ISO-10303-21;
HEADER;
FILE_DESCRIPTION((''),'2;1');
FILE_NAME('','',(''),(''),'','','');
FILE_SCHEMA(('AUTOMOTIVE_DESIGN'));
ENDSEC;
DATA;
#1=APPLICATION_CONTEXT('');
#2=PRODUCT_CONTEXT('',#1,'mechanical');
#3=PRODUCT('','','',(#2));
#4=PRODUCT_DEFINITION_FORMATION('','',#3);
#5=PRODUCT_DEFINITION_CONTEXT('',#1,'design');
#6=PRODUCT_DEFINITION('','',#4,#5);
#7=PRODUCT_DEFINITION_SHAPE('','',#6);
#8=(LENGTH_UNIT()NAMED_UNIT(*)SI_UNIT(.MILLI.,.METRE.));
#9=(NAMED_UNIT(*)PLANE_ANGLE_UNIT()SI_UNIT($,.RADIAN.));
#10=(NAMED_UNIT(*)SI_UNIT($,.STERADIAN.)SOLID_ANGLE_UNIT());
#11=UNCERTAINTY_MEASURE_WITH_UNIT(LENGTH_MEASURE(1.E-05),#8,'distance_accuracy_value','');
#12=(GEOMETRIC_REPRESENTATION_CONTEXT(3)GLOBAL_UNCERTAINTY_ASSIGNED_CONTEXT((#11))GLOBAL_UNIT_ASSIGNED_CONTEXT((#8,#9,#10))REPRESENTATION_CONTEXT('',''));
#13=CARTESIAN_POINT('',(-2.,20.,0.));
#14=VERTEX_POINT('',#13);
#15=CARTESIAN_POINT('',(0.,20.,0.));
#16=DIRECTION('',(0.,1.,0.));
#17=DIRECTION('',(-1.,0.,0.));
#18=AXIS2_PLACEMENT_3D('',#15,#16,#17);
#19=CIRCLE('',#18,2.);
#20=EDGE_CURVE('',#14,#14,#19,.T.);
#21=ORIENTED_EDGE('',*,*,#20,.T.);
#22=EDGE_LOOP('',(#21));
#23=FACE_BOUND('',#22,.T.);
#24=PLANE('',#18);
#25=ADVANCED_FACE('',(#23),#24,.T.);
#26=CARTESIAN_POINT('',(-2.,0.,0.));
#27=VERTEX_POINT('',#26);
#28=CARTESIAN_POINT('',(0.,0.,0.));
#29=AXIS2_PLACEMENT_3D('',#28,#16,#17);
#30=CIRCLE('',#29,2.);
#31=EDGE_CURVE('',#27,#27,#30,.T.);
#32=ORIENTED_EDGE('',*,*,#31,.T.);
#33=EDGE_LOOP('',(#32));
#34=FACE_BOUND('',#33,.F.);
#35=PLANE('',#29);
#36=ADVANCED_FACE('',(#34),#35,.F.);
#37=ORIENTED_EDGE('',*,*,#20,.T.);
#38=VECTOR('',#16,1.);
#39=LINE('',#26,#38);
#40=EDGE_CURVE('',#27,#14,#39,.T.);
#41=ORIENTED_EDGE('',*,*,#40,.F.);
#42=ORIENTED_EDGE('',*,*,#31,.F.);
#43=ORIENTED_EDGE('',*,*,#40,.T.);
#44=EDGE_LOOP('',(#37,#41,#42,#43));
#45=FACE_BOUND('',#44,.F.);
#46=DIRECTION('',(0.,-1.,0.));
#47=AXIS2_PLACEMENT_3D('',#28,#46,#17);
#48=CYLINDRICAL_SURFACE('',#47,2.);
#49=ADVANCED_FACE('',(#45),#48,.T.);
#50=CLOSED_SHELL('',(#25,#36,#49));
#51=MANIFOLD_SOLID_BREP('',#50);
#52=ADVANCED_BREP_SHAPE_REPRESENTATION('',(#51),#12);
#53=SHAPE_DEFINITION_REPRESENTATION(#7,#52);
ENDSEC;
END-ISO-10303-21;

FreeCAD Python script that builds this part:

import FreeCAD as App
import Part
import Sketcher
from FreeCAD import Vector
Q = App.Units.Quantity

doc = App.newDocument("Part")
body = doc.addObject("PartDesign::Body", "Body")

sketch1 = body.newObject("Sketcher::SketchObject", "Sketch")
sketch1.AttachmentSupport = (doc.getObject("XZ_Plane"), [""])
sketch1.MapMode = "FlatFace"
sketch1.addGeometry(Part.Circle(Vector(0, 0, 0), Vector(0, 0, 1), 2), False)
sketch1.addConstraint([
    Sketcher.Constraint("Coincident", 0, 3, -1, 1),
    Sketcher.Constraint("Diameter", 0, Q("4 mm")),
])
pad1 = body.newObject("PartDesign::Pad", "Pad")
pad1.Profile = sketch1
pad1.Length = 20
pad1.Reversed = True

doc.recompute()
